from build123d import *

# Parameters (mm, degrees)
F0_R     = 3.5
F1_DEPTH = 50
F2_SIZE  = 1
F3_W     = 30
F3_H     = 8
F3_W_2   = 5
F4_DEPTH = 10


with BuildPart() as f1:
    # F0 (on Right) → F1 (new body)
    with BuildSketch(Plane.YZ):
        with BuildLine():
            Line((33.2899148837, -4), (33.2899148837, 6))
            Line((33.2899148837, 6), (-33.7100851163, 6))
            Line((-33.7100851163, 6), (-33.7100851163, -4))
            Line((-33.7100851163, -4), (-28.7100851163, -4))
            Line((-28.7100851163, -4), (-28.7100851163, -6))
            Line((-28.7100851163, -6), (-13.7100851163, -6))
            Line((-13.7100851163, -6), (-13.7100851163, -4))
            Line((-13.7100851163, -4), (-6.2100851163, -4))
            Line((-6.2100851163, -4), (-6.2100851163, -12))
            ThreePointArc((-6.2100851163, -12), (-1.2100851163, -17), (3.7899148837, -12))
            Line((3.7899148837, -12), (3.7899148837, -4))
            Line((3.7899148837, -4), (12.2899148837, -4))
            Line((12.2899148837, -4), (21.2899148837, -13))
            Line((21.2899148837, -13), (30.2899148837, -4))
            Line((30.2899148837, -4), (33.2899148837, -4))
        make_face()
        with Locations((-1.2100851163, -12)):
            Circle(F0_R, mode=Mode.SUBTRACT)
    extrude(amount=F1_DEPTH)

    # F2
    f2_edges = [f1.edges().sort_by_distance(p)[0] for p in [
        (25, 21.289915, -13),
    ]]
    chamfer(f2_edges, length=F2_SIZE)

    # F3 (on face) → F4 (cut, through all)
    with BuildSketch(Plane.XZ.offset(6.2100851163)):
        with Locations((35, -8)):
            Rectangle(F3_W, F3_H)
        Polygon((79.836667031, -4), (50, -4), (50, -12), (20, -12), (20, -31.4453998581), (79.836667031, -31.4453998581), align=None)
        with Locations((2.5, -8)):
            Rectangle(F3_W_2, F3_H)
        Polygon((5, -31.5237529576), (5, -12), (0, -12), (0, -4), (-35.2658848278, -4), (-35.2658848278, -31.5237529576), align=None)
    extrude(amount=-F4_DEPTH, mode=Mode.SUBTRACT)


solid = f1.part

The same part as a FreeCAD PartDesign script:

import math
import FreeCAD as App
import Part
import Sketcher
from FreeCAD import Vector


def edges_at(feature, points):
    """Names of the edges that pass closest to the given points."""
    edges = feature.Shape.Edges
    near = lambda p: min(range(len(edges)), key=lambda i: edges[i].distToShape(Part.Vertex(*p))[0])
    return sorted({f"Edge{near(p) + 1}" for p in points})


def add_polygon(sketch, points):
    """Adds a closed chain of lines whose ends are joined by coincident constraints."""
    first, n = sketch.GeometryCount, len(points)
    for a, b in zip(points, points[1:] + points[:1]):
        sketch.addGeometry(Part.LineSegment(App.Vector(*a, 0), App.Vector(*b, 0)), False)
    for i in range(n):
        sketch.addConstraint(Sketcher.Constraint("Coincident", first + i, 2, first + (i + 1) % n, 1))

doc = App.newDocument("Part")
body = doc.addObject("PartDesign::Body", "Body")

sketch1 = body.newObject("Sketcher::SketchObject", "Sketch")
sketch1.AttachmentSupport = (doc.getObject("YZ_Plane"), [""])
sketch1.MapMode = "FlatFace"
sketch1.addGeometry([
    Part.LineSegment(Vector(33.3, -4, 0), Vector(33.3, 6, 0)),
    Part.LineSegment(Vector(33.3, 6, 0), Vector(-33.7, 6, 0)),
    Part.LineSegment(Vector(-33.7, 6, 0), Vector(-33.7, -4, 0)),
    Part.LineSegment(Vector(-33.7, -4, 0), Vector(-28.7, -4, 0)),
    Part.LineSegment(Vector(-28.7, -4, 0), Vector(-28.7, -6, 0)),
    Part.LineSegment(Vector(-28.7, -6, 0), Vector(-13.7, -6, 0)),
    Part.LineSegment(Vector(-13.7, -6, 0), Vector(-13.7, -4, 0)),
    Part.LineSegment(Vector(-13.7, -4, 0), Vector(-6.2, -4, 0)),
    Part.LineSegment(Vector(-6.2, -4, 0), Vector(-6.2, -12, 0)),
    Part.ArcOfCircle(Part.Circle(Vector(-1.2, -12, 0), Vector(0, 0, 1), 5), math.radians(180), math.radians(360)),
    Part.LineSegment(Vector(3.8, -12, 0), Vector(3.8, -4, 0)),
    Part.LineSegment(Vector(3.8, -4, 0), Vector(12.3, -4, 0)),
    Part.LineSegment(Vector(12.3, -4, 0), Vector(21.3, -13, 0)),
    Part.LineSegment(Vector(21.3, -13, 0), Vector(30.3, -4, 0)),
    Part.LineSegment(Vector(30.3, -4, 0), Vector(33.3, -4, 0)),
    Part.Circle(Vector(-1.2, -12, 0), Vector(0, 0, 1), 3.5),
], False)
sketch1.addConstraint([
    Sketcher.Constraint("Coincident", 0, 2, 1, 1),
    Sketcher.Constraint("Coincident", 1, 2, 2, 1),
    Sketcher.Constraint("Coincident", 2, 2, 3, 1),
    Sketcher.Constraint("Coincident", 3, 2, 4, 1),
    Sketcher.Constraint("Coincident", 4, 2, 5, 1),
    Sketcher.Constraint("Coincident", 5, 2, 6, 1),
    Sketcher.Constraint("Coincident", 6, 2, 7, 1),
    Sketcher.Constraint("Coincident", 7, 2, 8, 1),
    Sketcher.Constraint("Tangent", 8, 2, 9, 1),
    Sketcher.Constraint("Tangent", 9, 2, 10, 1),
    Sketcher.Constraint("Coincident", 10, 2, 11, 1),
    Sketcher.Constraint("Coincident", 11, 2, 12, 1),
    Sketcher.Constraint("Coincident", 12, 2, 13, 1),
    Sketcher.Constraint("Coincident", 13, 2, 14, 1),
    Sketcher.Constraint("Coincident", 14, 2, 0, 1),
    Sketcher.Constraint("Vertical", 0),
    Sketcher.Constraint("Horizontal", 1),
    Sketcher.Constraint("Vertical", 2),
    Sketcher.Constraint("Horizontal", 3),
    Sketcher.Constraint("Vertical", 4),
    Sketcher.Constraint("Horizontal", 5),
    Sketcher.Constraint("Vertical", 6),
    Sketcher.Constraint("Horizontal", 7),
    Sketcher.Constraint("Vertical", 8),
    Sketcher.Constraint("Vertical", 10),
    Sketcher.Constraint("Horizontal", 11),
    Sketcher.Constraint("Horizontal", 14),
    Sketcher.Constraint("Coincident", 15, 3, 9, 3),
    Sketcher.Constraint("Perpendicular", 12, 13),
    Sketcher.Constraint("Horizontal", 3, 2, 6, 2),
    Sketcher.Constraint("Horizontal", 7, 2, 10, 2),
    Sketcher.Constraint("Horizontal", 11, 2, 13, 2),
    Sketcher.Constraint("Equal", 12, 13),
    Sketcher.Constraint("Diameter", 15, 7.0),
    Sketcher.Constraint("Radius", 9, 5.0),
    Sketcher.Constraint("DistanceX", 1, 2, 1, 1, 67.0),
    Sketcher.Constraint("DistanceX", 3, 1, 3, 2, 5.0),
    Sketcher.Constraint("DistanceX", 5, 1, 5, 2, 15.0),
    Sketcher.Constraint("DistanceX", 14, 1, 14, 2, 3.0),
    Sketcher.Constraint("DistanceY", 0, 1, 0, 2, 10.0),
    Sketcher.Constraint("DistanceY", 4, 2, 4, 1, 2.0),
    Sketcher.Constraint("DistanceY", 8, 2, 8, 1, 8.0),
    Sketcher.Constraint("DistanceX", 7, 1, 7, 2, 7.5),
    Sketcher.Constraint("DistanceX", 11, 1, 11, 2, 8.5),
    Sketcher.Constraint("DistanceY", 9, 3, -1, 1, 12.0),
    Sketcher.Constraint("DistanceX", 9, 3, -1, 1, 1.210085),
])
pad1 = body.newObject("PartDesign::Pad", "Pad")
pad1.Profile = sketch1
pad1.Length = 50
doc.recompute()

chamfer = body.newObject("PartDesign::Chamfer", "Chamfer")
chamfer.Base = (pad1, edges_at(pad1, [(25, 21.29, -13)]))
chamfer.Size = 1

sketch2 = body.newObject("Sketcher::SketchObject", "Sketch001")
sketch2.AttachmentSupport = (doc.getObject("XZ_Plane"), [""])
sketch2.MapMode = "FlatFace"
sketch2.AttachmentOffset = App.Placement(Vector(0, 0, 6.210085), App.Rotation())
add_polygon(sketch2, [(20, -4), (20, -31), (80, -31), (80, -4)])
add_polygon(sketch2, [(5, -4), (-35, -4), (-35, -32), (5, -32)])
sketch2.addConstraint([
    Sketcher.Constraint("Vertical", 0),
    Sketcher.Constraint("Horizontal", 1),
    Sketcher.Constraint("Vertical", 2),
    Sketcher.Constraint("Horizontal", 3),
    Sketcher.Constraint("Horizontal", 4),
    Sketcher.Constraint("Vertical", 5),
    Sketcher.Constraint("Horizontal", 6),
    Sketcher.Constraint("Vertical", 7),
    Sketcher.Constraint("Horizontal", 3, 2, 4, 2),
    Sketcher.Constraint("DistanceX", -1, 1, 0, 2, 20.0),
    Sketcher.Constraint("DistanceY", 2, 2, -1, 1, 4.0),
    Sketcher.Constraint("DistanceX", -1, 1, 6, 2, 5.0),
    Sketcher.Constraint("DistanceY", 0, 2, 0, 1, 27.4454),
    Sketcher.Constraint("DistanceX", 1, 1, 1, 2, 59.836667),
    Sketcher.Constraint("DistanceX", 4, 2, 4, 1, 40.265885),
    Sketcher.Constraint("DistanceY", 5, 2, 5, 1, 27.523753),
])
pocket1 = body.newObject("PartDesign::Pocket", "Pocket")
pocket1.Profile = sketch2
pocket1.Length = 10

doc.recompute()
